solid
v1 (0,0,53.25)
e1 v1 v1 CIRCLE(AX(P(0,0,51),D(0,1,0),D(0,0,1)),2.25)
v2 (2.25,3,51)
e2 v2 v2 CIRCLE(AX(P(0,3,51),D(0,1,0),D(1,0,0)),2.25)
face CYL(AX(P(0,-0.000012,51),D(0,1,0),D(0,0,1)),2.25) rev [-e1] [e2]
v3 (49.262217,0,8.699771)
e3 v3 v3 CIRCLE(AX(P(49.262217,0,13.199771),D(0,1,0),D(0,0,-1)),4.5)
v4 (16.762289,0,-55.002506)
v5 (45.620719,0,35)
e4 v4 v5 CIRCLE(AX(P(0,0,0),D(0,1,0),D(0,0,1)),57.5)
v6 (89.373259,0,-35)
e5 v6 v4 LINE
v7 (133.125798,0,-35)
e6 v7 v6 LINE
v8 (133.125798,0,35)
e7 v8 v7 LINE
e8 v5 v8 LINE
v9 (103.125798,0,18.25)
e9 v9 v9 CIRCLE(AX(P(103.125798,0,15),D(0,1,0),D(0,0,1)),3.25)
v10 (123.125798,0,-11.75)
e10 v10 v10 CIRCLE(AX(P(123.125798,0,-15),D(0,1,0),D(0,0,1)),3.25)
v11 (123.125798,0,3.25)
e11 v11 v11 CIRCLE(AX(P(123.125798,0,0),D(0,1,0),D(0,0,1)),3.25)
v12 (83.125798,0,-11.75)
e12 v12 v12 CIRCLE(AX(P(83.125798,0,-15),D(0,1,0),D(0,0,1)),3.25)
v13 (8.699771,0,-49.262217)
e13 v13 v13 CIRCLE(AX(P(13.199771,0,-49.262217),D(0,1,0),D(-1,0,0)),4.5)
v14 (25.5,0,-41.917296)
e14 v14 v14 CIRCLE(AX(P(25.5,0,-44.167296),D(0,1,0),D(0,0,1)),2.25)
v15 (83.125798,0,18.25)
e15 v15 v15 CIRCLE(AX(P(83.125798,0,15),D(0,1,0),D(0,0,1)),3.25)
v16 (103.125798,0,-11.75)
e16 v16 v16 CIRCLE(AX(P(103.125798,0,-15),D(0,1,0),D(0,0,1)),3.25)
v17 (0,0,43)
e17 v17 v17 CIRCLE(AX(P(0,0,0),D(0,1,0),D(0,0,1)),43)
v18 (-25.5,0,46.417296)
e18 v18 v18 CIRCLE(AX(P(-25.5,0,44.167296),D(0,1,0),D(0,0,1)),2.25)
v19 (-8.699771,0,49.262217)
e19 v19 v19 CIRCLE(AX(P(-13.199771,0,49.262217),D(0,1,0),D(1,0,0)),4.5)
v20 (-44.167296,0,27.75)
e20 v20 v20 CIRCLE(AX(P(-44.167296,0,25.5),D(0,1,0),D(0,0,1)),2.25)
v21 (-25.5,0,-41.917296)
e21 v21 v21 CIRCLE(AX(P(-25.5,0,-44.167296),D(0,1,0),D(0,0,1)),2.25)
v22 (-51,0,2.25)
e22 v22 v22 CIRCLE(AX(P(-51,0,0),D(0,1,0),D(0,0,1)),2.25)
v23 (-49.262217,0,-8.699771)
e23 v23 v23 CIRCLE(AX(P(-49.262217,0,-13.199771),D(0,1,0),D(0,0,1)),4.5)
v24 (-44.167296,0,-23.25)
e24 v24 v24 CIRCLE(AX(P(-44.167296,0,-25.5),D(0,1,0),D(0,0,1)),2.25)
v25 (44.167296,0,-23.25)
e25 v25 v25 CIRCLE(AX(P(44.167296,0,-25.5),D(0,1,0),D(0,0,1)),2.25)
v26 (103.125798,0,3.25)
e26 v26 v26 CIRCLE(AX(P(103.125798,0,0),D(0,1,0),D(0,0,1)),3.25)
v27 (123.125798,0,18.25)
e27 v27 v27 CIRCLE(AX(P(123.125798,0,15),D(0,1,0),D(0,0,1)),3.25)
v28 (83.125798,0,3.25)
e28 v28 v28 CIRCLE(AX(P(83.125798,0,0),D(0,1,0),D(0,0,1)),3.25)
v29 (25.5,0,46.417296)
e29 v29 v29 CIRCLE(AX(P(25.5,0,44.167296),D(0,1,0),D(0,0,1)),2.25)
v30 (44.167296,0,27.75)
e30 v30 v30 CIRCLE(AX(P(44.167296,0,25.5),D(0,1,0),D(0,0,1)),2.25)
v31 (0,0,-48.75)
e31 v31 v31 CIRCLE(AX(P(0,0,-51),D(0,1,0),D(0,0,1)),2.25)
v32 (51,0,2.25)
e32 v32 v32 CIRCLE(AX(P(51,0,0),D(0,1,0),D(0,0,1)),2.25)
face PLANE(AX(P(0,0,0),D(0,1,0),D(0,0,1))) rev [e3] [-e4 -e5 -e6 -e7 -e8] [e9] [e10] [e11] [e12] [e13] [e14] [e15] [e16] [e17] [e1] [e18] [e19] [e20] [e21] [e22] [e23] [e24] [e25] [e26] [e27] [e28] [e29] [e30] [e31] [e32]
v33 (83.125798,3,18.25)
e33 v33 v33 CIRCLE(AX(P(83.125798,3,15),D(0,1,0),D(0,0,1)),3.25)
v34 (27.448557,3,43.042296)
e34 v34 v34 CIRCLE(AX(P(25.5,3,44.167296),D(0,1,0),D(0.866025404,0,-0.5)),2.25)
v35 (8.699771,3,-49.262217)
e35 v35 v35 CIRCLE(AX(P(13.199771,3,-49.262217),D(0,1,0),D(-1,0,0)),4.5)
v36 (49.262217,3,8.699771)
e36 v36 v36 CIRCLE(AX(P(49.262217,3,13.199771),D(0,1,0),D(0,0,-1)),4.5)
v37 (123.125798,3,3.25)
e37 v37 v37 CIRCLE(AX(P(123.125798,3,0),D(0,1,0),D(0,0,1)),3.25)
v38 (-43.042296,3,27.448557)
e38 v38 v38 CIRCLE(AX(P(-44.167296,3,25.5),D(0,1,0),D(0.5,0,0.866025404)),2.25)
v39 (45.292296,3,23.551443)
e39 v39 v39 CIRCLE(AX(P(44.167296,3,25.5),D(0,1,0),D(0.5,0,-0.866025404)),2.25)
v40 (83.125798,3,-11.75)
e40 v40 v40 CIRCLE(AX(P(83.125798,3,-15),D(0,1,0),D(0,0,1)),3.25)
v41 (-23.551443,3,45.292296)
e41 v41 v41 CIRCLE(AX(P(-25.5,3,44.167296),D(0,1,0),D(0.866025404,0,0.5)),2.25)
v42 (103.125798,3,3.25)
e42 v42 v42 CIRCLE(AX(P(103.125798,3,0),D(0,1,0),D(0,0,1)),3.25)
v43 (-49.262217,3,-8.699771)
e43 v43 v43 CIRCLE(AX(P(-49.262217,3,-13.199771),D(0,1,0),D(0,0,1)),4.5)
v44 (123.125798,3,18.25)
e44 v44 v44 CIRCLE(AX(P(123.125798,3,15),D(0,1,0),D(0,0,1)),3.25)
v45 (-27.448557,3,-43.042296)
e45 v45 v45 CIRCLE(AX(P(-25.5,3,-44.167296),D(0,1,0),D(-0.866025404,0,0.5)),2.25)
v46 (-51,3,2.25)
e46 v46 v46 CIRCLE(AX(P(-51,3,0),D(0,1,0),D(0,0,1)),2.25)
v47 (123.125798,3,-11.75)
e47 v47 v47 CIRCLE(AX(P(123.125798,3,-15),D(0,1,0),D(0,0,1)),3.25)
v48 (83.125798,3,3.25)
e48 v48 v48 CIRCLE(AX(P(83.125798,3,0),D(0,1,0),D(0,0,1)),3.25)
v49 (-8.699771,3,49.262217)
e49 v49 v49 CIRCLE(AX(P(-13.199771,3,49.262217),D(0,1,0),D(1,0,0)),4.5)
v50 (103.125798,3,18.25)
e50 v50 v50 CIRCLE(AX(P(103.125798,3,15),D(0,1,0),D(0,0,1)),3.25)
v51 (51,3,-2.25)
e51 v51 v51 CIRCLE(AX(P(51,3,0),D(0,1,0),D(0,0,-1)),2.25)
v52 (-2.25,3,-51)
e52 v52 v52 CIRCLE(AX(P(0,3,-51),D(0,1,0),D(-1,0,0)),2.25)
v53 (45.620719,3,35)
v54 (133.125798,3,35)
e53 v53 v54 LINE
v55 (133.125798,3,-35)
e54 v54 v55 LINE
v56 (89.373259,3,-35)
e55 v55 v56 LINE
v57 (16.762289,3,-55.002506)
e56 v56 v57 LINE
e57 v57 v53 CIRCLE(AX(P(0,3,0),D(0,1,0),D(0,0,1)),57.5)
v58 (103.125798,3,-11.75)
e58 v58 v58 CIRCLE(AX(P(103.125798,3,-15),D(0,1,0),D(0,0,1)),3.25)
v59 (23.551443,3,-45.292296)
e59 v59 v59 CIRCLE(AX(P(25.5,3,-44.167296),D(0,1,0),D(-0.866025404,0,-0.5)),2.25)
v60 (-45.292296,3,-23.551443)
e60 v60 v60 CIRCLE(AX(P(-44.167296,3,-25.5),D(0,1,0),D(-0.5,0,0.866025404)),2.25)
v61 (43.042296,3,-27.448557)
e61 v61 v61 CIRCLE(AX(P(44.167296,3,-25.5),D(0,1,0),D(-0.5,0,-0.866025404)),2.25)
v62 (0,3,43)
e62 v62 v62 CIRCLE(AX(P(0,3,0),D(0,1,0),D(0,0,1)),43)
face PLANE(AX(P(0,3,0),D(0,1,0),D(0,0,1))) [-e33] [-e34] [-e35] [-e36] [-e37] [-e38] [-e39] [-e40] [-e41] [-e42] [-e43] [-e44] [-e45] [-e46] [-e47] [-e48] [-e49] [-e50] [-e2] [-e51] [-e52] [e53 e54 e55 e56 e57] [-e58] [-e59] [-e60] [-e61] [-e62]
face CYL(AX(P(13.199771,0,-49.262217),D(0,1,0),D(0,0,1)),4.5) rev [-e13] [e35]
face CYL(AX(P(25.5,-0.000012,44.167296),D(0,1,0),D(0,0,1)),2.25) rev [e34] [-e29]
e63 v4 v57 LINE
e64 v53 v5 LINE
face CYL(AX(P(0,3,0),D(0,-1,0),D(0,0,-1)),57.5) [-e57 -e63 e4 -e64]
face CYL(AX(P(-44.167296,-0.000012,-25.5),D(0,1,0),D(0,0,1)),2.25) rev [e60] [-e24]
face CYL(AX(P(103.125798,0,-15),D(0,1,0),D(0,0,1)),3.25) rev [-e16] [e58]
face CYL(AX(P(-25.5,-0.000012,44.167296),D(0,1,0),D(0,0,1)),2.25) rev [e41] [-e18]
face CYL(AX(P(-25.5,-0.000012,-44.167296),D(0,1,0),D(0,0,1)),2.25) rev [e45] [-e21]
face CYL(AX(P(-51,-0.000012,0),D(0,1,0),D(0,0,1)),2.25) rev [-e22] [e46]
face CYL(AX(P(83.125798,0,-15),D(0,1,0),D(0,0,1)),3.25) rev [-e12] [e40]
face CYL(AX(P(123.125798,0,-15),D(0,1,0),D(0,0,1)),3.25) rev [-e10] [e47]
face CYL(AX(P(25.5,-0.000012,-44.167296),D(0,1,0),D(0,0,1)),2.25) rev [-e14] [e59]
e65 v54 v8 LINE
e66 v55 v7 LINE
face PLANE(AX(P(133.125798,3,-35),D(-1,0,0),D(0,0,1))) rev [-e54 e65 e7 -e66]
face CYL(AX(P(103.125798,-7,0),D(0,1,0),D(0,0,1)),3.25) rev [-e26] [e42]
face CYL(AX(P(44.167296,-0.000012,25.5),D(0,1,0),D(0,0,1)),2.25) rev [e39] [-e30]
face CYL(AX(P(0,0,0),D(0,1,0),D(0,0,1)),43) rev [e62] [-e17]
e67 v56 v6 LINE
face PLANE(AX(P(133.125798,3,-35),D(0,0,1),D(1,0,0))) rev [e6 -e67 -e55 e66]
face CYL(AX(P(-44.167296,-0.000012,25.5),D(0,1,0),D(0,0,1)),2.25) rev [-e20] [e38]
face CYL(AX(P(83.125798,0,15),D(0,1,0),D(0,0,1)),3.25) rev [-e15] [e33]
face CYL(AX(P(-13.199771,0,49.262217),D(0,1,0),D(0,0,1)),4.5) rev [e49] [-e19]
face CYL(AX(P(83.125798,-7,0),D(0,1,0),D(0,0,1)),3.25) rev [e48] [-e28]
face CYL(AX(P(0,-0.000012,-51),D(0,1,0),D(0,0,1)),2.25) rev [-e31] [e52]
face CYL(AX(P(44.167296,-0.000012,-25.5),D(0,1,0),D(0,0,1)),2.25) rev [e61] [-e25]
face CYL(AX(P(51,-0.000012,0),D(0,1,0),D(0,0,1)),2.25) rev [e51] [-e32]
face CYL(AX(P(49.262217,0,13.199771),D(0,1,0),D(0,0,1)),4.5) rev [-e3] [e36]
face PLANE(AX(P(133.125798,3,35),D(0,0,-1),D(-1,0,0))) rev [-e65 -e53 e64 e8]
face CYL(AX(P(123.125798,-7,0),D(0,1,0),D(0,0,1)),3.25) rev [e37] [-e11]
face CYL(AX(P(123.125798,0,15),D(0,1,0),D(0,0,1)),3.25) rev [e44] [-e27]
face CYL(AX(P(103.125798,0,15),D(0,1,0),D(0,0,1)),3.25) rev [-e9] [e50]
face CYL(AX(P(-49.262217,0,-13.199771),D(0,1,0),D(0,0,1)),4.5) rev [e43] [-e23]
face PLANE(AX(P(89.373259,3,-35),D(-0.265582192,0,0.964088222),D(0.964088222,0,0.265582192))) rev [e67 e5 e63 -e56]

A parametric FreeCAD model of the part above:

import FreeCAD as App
import Part
import Sketcher

V = App.Vector


def add_polygon(sketch, points):
    """Adds a closed chain of lines whose ends are joined by coincident constraints."""
    first, n = sketch.GeometryCount, len(points)
    for a, b in zip(points, points[1:] + points[:1]):
        sketch.addGeometry(Part.LineSegment(App.Vector(*a, 0), App.Vector(*b, 0)), False)
    for i in range(n):
        sketch.addConstraint(Sketcher.Constraint("Coincident", first + i, 2, first + (i + 1) % n, 1))

doc = App.newDocument("Part")
params = doc.addObject("Spreadsheet::Sheet", "Params")
for row, (alias, value) in enumerate([
    ("sketch1_diameter", "115 mm"),
    ("pad1_length", "3 mm"),
    ("sketch2_width", "140 mm"),
    ("sketch2_height", "70 mm"),
    ("pad2_length", "3 mm"),
    ("pad3_length", "3 mm"),
    ("sketch4_diameter", "86 mm"),
    ("sketch5_diameter", "6.5 mm"),
    ("linearpattern_pitch", "20 mm"),
    ("sketch6_diameter", "4.5 mm"),
    ("pocket3_length", "5 mm"),
    ("sketch7_diameter", "9 mm"),
    ("sketch8_diameter", "6.5 mm"),
    ("pocket5_length", "10 mm"),
    ("linearpattern2_pitch", "20 mm"),
], start=1):
    params.set(f"A{row}", alias)
    params.set(f"B{row}", "=" + value)
    params.setAlias(f"B{row}", alias)

body = doc.addObject("PartDesign::Body", "Body")

# Sketch on XZ plane
sketch1 = body.newObject("Sketcher::SketchObject", "Sketch")
sketch1.AttachmentSupport = (doc.getObject("XZ_Plane"), [""])
sketch1.MapMode = "FlatFace"
sketch1.addGeometry(Part.Circle(V(0, 0, 0), V(0, 0, 1), 57.5), False)
sketch1.addConstraint([
    Sketcher.Constraint("Coincident", 0, 3, -1, 1),
    Sketcher.Constraint("Diameter", 0, 115.0),
])
sketch1.setExpression("Constraints[1]", "Params.sketch1_diameter")
pad1 = body.newObject("PartDesign::Pad", "Pad")
pad1.Profile = sketch1
pad1.setExpression("Length", "Params.pad1_length")
pad1.Reversed = True

# Sketch on XZ plane
sketch2 = body.newObject("Sketcher::SketchObject", "Sketch001")
sketch2.AttachmentSupport = (doc.getObject("XZ_Plane"), [""])
sketch2.MapMode = "FlatFace"
add_polygon(sketch2, [(-6.874202, -35), (-6.874202, 35), (133.125798, 35), (133.125798, -35)])  # lines 0-3
sketch2.addConstraint([
    Sketcher.Constraint("Vertical", 0),
    Sketcher.Constraint("Horizontal", 1),
    Sketcher.Constraint("Vertical", 2),
    Sketcher.Constraint("Horizontal", 3),
    Sketcher.Constraint("DistanceX", 1, 1, 1, 2, 140.0),
    Sketcher.Constraint("DistanceY", 0, 1, 0, 2, 70.0),
    Sketcher.Constraint("DistanceY", -1, 1, 0, 2, 35.0),
    Sketcher.Constraint("DistanceX", 0, 2, -1, 1, 6.874202),
])
sketch2.setExpression("Constraints[8]", "Params.sketch2_width")
sketch2.setExpression("Constraints[9]", "Params.sketch2_height")
pad2 = body.newObject("PartDesign::Pad", "Pad001")
pad2.Profile = sketch2
pad2.setExpression("Length", "Params.pad2_length")
pad2.Reversed = True

# Sketch on XZ plane
sketch3 = body.newObject("Sketcher::SketchObject", "Sketch002")
sketch3.AttachmentSupport = (doc.getObject("XZ_Plane"), [""])
sketch3.MapMode = "FlatFace"
add_polygon(sketch3, [(89.373259, -35), (13.768526, -55.827213), (13.768526, -13.558752)])  # lines 0-2
sketch3.addConstraint([
    Sketcher.Constraint("Vertical", 1),
    Sketcher.Constraint("DistanceY", 2, 2, -1, 1, 35.0),
    Sketcher.Constraint("DistanceY", 1, 1, 1, 2, 42.268461),
    Sketcher.Constraint("Distance", 0, 78.420969),
    Sketcher.Constraint("DistanceY", 1, 2, -1, 1, 13.558752),
    Sketcher.Constraint("DistanceX", -1, 1, 2, 2, 89.373259),
])
pad3 = body.newObject("PartDesign::Pad", "Pad002")
pad3.Profile = sketch3
pad3.setExpression("Length", "Params.pad3_length")
pad3.Reversed = True

# Sketch on XZ plane
sketch4 = body.newObject("Sketcher::SketchObject", "Sketch003")
sketch4.AttachmentSupport = (doc.getObject("XZ_Plane"), [""])
sketch4.MapMode = "FlatFace"
sketch4.AttachmentOffset = App.Placement(V(0, 0, -3), App.Rotation())
sketch4.addGeometry(Part.Circle(V(0, 0, 0), V(0, 0, 1), 43), False)
sketch4.addConstraint([
    Sketcher.Constraint("Coincident", 0, 3, -1, 1),
    Sketcher.Constraint("Diameter", 0, 86.0),
])
sketch4.setExpression("Constraints[1]", "Params.sketch4_diameter")
pocket1 = body.newObject("PartDesign::Pocket", "Pocket")
pocket1.Profile = sketch4
pocket1.Type = "ThroughAll"
pocket1.Reversed = True

# Sketch on XZ plane
sketch5 = body.newObject("Sketcher::SketchObject", "Sketch004")
sketch5.AttachmentSupport = (doc.getObject("XZ_Plane"), [""])
sketch5.MapMode = "FlatFace"
sketch5.AttachmentOffset = App.Placement(V(0, 0, -3), App.Rotation())
sketch5.addGeometry([
    Part.Circle(V(123.125798, -15, 0), V(0, 0, 1), 3.25),
    Part.Circle(V(123.125798, 15, 0), V(0, 0, 1), 3.25),
], False)
sketch5.addConstraint([
    Sketcher.Constraint("Equal", 0, 1),
    Sketcher.Constraint("Symmetric", 0, 3, 1, 3, -1),
    Sketcher.Constraint("Diameter", 0, 6.5),
    Sketcher.Constraint("DistanceY", 0, 3, -1, 1, 15.0),
    Sketcher.Constraint("DistanceX", -1, 1, 0, 3, 123.125798),
])
sketch5.setExpression("Constraints[2]", "Params.sketch5_diameter")
pocket2 = body.newObject("PartDesign::Pocket", "Pocket001")
pocket2.Profile = sketch5
pocket2.Type = "ThroughAll"
pocket2.Reversed = True
doc.recompute()

linearpattern = body.newObject("PartDesign::LinearPattern", "LinearPattern")
linearpattern.Originals = [pocket2]
linearpattern.Direction = (doc.getObject("X_Axis"), [""])
linearpattern.Mode = "offset"
linearpattern.setExpression("Offset", "Params.linearpattern_pitch")
linearpattern.Occurrences = 3
linearpattern.Reversed = True
body.Tip = linearpattern

# Sketch on XZ plane
sketch6 = body.newObject("Sketcher::SketchObject", "Sketch005")
sketch6.AttachmentSupport = (doc.getObject("XZ_Plane"), [""])
sketch6.MapMode = "FlatFace"
sketch6.AttachmentOffset = App.Placement(V(0, 0, 1), App.Rotation())
sketch6.addGeometry(Part.Circle(V(-51, 0, 0), V(0, 0, 1), 2.25), False)
sketch6.addConstraint([
    Sketcher.Constraint("PointOnObject", 0, 3, -1),
    Sketcher.Constraint("Diameter", 0, 4.5),
    Sketcher.Constraint("DistanceX", 0, 3, -1, 1, 51.0),
])
sketch6.setExpression("Constraints[1]", "Params.sketch6_diameter")
pocket3 = body.newObject("PartDesign::Pocket", "Pocket002")
pocket3.Profile = sketch6
pocket3.setExpression("Length", "Params.pocket3_length")
doc.recompute()

polarpattern = body.newObject("PartDesign::PolarPattern", "PolarPattern")
polarpattern.Originals = [pocket3]
polarpattern.Axis = (doc.getObject("Y_Axis"), [""])
polarpattern.Angle = 360
polarpattern.Occurrences = 12
body.Tip = polarpattern

# Sketch on XZ plane
sketch7 = body.newObject("Sketcher::SketchObject", "Sketch006")
sketch7.AttachmentSupport = (doc.getObject("XZ_Plane"), [""])
sketch7.MapMode = "FlatFace"
sketch7.AttachmentOffset = App.Placement(V(0, 0, -3), App.Rotation())
sketch7.addGeometry(Part.Circle(V(-49.262217, -13.199771, 0), V(0, 0, 1), 4.5), False)
sketch7.addConstraint([
    Sketcher.Constraint("Diameter", 0, 9.0),
    Sketcher.Constraint("DistanceY", 0, 3, -1, 1, 13.199771),
    Sketcher.Constraint("DistanceX", 0, 3, -1, 1, 49.262217),
])
sketch7.setExpression("Constraints[0]", "Params.sketch7_diameter")
pocket4 = body.newObject("PartDesign::Pocket", "Pocket003")
pocket4.Profile = sketch7
pocket4.Type = "ThroughAll"
pocket4.Reversed = True
doc.recompute()

polarpattern2 = body.newObject("PartDesign::PolarPattern", "PolarPattern001")
polarpattern2.Originals = [pocket4]
polarpattern2.Axis = (doc.getObject("Y_Axis"), [""])
polarpattern2.Angle = 360
polarpattern2.Occurrences = 4
body.Tip = polarpattern2

# Sketch on XZ plane
sketch8 = body.newObject("Sketcher::SketchObject", "Sketch007")
sketch8.AttachmentSupport = (doc.getObject("XZ_Plane"), [""])
sketch8.MapMode = "FlatFace"
sketch8.AttachmentOffset = App.Placement(V(0, 0, -3), App.Rotation())
sketch8.addGeometry(Part.Circle(V(123.125798, 0, 0), V(0, 0, 1), 3.25), False)
sketch8.addConstraint([
    Sketcher.Constraint("PointOnObject", 0, 3, -1),
    Sketcher.Constraint("Diameter", 0, 6.5),
    Sketcher.Constraint("DistanceX", -1, 1, 0, 3, 123.125798),
])
sketch8.setExpression("Constraints[1]", "Params.sketch8_diameter")
pocket5 = body.newObject("PartDesign::Pocket", "Pocket004")
pocket5.Profile = sketch8
pocket5.setExpression("Length", "Params.pocket5_length")
pocket5.Reversed = True
doc.recompute()

linearpattern2 = body.newObject("PartDesign::LinearPattern", "LinearPattern001")
linearpattern2.Originals = [pocket5]
linearpattern2.Direction = (doc.getObject("X_Axis"), [""])
linearpattern2.Mode = "offset"
linearpattern2.setExpression("Offset", "Params.linearpattern2_pitch")
linearpattern2.Occurrences = 3
linearpattern2.Reversed = True
body.Tip = linearpattern2

doc.recompute()
